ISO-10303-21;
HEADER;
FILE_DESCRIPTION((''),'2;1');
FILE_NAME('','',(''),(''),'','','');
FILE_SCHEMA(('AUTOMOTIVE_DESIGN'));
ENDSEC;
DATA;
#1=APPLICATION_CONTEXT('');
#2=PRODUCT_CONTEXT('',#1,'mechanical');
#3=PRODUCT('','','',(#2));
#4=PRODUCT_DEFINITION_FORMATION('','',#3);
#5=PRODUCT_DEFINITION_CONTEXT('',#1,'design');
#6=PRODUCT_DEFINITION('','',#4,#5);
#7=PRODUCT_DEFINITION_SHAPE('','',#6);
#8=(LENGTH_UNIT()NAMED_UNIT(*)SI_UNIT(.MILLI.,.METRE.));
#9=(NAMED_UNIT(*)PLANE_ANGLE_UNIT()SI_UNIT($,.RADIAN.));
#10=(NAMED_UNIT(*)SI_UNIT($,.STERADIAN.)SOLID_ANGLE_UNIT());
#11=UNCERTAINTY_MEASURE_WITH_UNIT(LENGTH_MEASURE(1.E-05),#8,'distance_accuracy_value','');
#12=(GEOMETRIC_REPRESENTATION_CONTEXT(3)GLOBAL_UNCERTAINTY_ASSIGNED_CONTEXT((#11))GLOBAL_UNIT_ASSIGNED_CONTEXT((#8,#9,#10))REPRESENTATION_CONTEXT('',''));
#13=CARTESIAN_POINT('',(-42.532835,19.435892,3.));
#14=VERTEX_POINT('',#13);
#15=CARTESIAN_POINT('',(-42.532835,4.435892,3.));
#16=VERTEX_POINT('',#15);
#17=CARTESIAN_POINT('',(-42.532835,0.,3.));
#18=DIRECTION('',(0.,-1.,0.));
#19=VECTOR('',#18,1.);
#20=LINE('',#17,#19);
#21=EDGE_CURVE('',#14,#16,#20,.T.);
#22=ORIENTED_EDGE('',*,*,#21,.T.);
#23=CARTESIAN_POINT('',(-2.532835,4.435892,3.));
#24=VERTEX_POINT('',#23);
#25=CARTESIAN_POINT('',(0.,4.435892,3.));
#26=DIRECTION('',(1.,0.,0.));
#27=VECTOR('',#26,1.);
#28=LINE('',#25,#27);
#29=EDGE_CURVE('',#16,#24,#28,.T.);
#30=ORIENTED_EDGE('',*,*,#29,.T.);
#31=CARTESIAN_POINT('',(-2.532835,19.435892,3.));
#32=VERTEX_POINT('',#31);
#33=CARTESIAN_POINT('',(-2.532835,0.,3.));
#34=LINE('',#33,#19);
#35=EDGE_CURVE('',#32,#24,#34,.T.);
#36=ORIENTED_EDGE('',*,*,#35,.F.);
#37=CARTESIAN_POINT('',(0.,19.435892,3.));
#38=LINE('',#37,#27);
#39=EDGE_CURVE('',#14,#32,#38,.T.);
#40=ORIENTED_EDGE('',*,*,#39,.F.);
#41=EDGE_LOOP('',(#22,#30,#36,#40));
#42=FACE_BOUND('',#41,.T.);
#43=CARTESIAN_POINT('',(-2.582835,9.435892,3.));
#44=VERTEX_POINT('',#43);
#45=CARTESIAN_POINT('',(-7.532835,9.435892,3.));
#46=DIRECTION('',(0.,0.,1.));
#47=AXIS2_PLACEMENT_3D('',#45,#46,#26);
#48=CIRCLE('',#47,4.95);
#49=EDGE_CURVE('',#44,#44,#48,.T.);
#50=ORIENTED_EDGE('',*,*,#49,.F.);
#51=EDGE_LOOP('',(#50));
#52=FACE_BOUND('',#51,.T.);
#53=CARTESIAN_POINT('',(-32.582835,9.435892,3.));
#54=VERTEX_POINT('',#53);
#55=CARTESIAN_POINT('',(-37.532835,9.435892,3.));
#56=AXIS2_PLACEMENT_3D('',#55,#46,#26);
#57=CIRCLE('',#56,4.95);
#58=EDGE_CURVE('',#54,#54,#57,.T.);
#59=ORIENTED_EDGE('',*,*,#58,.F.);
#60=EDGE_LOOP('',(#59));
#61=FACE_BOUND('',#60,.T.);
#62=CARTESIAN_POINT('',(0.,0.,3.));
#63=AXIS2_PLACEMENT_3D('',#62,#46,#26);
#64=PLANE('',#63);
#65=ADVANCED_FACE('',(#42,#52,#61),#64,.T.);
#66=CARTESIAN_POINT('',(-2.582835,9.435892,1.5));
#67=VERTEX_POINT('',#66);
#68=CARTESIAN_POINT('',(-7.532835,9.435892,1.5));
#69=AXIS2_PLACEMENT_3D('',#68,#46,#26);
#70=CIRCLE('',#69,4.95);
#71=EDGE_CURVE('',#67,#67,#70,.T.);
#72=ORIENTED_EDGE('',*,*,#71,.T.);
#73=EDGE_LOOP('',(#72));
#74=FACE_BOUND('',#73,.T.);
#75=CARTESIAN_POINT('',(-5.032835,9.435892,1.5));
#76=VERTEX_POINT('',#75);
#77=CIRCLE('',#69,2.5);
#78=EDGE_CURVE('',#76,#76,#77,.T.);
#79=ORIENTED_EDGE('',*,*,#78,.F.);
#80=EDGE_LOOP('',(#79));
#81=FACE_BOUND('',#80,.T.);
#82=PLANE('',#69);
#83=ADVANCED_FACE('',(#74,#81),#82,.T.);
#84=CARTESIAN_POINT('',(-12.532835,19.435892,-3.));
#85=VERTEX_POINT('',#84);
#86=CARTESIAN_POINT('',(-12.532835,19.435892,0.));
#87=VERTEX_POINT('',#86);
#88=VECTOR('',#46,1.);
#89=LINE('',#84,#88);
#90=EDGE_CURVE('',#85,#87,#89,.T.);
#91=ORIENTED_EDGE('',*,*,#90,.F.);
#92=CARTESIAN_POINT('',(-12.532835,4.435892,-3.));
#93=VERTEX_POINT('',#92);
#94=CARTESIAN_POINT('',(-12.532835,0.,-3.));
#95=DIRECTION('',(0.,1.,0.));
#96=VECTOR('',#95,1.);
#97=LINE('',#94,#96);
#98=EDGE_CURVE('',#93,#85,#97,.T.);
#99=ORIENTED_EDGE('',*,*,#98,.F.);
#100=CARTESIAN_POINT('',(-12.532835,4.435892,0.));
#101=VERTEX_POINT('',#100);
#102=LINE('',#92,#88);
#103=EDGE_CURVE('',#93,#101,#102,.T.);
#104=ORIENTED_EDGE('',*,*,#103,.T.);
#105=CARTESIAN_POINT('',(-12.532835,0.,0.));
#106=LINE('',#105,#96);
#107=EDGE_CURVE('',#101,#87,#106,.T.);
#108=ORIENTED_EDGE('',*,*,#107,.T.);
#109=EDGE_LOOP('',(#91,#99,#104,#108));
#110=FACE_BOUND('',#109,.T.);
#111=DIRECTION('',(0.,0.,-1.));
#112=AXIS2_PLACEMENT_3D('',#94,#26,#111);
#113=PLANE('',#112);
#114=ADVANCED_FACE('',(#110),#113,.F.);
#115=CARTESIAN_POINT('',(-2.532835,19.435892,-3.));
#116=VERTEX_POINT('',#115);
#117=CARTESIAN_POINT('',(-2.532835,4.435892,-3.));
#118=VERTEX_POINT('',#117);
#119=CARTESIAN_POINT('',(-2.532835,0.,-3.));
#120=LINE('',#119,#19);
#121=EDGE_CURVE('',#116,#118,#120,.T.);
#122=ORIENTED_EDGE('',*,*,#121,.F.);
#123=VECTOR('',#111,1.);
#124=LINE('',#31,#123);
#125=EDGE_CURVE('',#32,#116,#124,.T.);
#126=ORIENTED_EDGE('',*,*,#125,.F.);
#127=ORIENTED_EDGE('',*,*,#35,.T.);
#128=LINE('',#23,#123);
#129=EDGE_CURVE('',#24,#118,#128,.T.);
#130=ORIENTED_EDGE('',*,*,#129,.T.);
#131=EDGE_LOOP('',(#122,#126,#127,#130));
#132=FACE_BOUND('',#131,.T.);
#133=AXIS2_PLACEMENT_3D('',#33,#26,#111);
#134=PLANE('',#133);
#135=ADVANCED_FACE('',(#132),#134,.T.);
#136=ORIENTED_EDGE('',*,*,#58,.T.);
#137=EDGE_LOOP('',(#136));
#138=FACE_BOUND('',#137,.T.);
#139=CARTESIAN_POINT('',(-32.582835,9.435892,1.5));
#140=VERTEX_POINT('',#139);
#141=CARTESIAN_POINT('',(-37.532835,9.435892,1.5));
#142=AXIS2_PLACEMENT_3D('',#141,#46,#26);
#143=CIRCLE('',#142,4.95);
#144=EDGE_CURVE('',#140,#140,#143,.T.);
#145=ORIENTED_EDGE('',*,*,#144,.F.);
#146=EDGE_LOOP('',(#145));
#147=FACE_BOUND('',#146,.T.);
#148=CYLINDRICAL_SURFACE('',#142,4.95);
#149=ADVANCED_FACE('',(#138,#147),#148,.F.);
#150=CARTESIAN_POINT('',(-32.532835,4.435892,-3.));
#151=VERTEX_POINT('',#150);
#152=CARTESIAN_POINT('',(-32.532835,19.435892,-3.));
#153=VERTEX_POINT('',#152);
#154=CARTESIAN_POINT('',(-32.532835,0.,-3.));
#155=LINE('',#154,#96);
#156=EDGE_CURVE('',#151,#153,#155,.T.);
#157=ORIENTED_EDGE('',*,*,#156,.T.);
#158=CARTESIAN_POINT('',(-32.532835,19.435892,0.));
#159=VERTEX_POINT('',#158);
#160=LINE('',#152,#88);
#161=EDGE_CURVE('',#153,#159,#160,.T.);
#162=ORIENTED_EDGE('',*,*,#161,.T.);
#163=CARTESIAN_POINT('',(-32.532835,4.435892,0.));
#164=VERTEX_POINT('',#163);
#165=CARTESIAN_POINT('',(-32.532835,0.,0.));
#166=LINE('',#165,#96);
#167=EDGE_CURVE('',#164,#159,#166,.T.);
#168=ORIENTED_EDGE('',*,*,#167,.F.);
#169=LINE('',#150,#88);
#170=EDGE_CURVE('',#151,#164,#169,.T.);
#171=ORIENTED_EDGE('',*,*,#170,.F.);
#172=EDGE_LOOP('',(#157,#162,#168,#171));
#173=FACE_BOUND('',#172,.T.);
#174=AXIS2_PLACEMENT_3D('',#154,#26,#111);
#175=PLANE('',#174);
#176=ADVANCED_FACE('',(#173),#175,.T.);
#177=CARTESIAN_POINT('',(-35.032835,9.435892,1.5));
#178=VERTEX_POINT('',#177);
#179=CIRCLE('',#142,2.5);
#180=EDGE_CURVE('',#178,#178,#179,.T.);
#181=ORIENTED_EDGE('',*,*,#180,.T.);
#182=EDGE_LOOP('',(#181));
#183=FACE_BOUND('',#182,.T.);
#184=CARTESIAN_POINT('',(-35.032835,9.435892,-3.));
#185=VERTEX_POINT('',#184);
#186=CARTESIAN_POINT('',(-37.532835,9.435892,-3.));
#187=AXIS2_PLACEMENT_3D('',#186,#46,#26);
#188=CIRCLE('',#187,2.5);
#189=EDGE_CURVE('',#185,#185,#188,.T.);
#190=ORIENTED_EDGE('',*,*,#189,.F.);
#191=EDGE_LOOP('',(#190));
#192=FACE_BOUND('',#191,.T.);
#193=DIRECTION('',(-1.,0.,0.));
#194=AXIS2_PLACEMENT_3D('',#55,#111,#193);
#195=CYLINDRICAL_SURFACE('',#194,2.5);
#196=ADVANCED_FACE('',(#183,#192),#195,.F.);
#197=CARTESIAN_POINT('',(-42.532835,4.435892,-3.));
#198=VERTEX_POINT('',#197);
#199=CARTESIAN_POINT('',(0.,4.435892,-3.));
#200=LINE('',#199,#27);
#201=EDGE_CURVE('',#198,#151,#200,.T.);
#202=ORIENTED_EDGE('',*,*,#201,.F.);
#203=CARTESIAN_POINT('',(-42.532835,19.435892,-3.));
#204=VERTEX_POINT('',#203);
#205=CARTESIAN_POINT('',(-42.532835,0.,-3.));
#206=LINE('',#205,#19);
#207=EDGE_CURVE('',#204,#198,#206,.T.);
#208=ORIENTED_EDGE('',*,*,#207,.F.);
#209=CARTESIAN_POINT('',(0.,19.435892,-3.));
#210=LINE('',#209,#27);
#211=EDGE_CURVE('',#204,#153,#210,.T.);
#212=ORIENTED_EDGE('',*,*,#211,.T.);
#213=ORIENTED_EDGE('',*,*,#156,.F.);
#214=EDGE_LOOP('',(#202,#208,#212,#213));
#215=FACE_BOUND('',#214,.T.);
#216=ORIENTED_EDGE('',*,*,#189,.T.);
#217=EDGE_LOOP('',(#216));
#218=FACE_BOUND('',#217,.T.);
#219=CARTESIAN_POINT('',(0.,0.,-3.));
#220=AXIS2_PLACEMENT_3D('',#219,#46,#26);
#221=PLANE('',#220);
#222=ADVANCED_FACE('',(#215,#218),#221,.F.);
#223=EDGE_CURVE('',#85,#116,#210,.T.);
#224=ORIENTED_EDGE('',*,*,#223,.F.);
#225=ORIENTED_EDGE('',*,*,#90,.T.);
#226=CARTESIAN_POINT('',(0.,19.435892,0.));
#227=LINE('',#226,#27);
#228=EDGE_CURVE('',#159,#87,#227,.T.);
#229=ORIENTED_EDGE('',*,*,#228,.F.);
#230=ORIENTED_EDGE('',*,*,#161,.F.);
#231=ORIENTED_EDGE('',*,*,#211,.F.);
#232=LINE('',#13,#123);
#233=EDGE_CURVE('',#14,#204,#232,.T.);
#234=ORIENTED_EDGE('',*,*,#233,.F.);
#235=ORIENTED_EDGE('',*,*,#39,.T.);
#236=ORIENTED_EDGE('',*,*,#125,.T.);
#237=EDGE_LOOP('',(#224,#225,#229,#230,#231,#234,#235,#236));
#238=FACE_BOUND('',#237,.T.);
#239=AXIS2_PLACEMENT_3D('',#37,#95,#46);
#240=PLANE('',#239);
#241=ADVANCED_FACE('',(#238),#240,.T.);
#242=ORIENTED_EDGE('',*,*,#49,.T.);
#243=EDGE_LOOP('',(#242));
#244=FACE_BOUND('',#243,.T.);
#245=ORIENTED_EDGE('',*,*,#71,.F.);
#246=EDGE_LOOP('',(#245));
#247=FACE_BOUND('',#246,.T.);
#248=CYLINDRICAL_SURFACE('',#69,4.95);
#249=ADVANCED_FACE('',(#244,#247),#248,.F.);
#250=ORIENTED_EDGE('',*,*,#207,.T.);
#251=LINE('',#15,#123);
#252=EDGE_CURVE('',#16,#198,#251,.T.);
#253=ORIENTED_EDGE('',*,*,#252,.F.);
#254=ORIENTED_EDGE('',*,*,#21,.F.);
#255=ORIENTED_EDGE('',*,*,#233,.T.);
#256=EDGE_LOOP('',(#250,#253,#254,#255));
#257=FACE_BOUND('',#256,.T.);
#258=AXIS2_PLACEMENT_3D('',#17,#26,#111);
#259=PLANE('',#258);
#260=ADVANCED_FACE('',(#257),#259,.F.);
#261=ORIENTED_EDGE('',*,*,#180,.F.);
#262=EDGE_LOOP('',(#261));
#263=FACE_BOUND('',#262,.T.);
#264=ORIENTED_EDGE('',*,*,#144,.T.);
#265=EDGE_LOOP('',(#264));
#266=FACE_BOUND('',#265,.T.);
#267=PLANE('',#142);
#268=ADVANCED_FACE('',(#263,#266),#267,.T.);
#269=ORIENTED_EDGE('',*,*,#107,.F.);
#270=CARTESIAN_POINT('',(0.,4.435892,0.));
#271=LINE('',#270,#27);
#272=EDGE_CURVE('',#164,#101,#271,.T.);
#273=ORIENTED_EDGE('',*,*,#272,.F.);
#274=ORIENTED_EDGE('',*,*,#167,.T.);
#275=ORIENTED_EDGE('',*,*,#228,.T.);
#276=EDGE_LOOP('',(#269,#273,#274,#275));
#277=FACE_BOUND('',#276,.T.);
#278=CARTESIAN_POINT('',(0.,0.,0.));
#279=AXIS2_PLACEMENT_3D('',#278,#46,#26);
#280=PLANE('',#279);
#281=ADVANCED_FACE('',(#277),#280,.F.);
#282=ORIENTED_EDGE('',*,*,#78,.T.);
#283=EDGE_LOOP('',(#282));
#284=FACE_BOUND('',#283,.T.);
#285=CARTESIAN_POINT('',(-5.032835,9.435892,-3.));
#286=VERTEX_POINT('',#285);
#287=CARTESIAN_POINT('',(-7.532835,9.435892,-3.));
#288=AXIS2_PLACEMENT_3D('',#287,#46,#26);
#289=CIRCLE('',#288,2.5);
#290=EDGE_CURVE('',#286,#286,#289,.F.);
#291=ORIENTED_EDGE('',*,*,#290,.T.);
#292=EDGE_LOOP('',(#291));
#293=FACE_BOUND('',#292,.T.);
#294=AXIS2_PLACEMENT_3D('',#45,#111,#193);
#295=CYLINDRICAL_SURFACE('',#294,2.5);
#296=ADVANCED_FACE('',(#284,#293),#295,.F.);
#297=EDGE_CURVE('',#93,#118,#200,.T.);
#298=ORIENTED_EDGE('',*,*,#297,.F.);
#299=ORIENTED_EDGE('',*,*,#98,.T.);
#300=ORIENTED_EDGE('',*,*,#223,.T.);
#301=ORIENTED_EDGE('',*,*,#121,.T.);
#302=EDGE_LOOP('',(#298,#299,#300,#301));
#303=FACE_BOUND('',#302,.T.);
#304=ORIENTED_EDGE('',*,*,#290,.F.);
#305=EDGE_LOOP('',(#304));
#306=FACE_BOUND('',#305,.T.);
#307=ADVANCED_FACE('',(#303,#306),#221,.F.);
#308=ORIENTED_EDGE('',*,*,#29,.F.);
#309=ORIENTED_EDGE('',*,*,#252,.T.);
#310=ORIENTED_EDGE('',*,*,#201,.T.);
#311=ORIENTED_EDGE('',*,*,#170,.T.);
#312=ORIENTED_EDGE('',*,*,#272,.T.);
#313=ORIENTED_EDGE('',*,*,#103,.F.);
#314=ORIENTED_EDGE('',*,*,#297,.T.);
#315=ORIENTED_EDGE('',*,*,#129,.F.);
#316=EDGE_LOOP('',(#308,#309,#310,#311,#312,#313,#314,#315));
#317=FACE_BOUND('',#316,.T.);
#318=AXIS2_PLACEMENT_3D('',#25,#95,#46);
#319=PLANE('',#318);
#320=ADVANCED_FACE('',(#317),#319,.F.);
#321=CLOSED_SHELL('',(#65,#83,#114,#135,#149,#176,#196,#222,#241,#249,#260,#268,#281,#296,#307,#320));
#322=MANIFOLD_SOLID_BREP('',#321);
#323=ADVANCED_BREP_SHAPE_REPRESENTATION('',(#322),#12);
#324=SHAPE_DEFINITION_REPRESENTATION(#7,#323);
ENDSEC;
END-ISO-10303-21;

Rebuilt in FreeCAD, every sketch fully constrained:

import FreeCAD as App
import Part
import Sketcher

doc = App.newDocument("Part")
params = doc.addObject("Spreadsheet::Sheet", "Params")
for row, (alias, value) in enumerate([
    ("sketch1_diameter", "5 mm"),
    ("sketch1_width", "40 mm"),
    ("sketch1_height", "15 mm"),
    ("pad1_length", "3 mm"),
    ("sketch2_diameter", "5 mm"),
    ("sketch2_width", "10 mm"),
    ("sketch2_height", "15 mm"),
    ("pad2_length", "3 mm"),
    ("sketch3_diameter", "5 mm"),
    ("sketch3_diameter2", "9.9 mm"),
    ("pocket1_length", "1.5 mm"),
], start=1):
    params.set(f"A{row}", alias)
    params.set(f"B{row}", "=" + value)
    params.setAlias(f"B{row}", alias)

body = doc.addObject("PartDesign::Body", "Body")

# Sketch on XY plane
sketch1 = doc.addObject("Sketcher::SketchObject", "Sketch")
body.addObject(sketch1)
sketch1.AttachmentSupport = (doc.XY_Plane, [""])
sketch1.MapMode = "FlatFace"
sketch1.addGeometry([
    Part.LineSegment(App.Vector(-42.532835, 19.435892, 0), App.Vector(-42.532835, 4.435892, 0)),  # 0
    Part.LineSegment(App.Vector(-42.532835, 4.435892, 0), App.Vector(-2.532835, 4.435892, 0)),  # 1
    Part.LineSegment(App.Vector(-2.532835, 4.435892, 0), App.Vector(-2.532835, 19.435892, 0)),  # 2
    Part.LineSegment(App.Vector(-2.532835, 19.435892, 0), App.Vector(-42.532835, 19.435892, 0)),  # 3
    Part.Circle(App.Vector(-37.532835, 9.435892, 0), App.Vector(0, 0, 1), 2.5),  # 4
    Part.Circle(App.Vector(-7.532835, 9.435892, 0), App.Vector(0, 0, 1), 2.5),  # 5
], False)
sketch1.addConstraint([
    Sketcher.Constraint("Coincident", 0, 2, 1, 1),
    Sketcher.Constraint("Coincident", 1, 2, 2, 1),
    Sketcher.Constraint("Coincident", 2, 2, 3, 1),
    Sketcher.Constraint("Coincident", 3, 2, 0, 1),
    Sketcher.Constraint("Vertical", 0),
    Sketcher.Constraint("Horizontal", 1),
    Sketcher.Constraint("Vertical", 2),
    Sketcher.Constraint("Horizontal", 3),
    Sketcher.Constraint("Equal", 4, 5),
    Sketcher.Constraint("Horizontal", 4, 3, 5, 3),
    Sketcher.Constraint("Diameter", 4, 5.0),
    Sketcher.Constraint("DistanceX", 1, 1, 1, 2, 40.0),
    Sketcher.Constraint("DistanceY", 0, 2, 0, 1, 15.0),
    Sketcher.Constraint("DistanceX", 4, 3, 5, 3, 30.0),
    Sketcher.Constraint("DistanceX", 0, 2, 4, 3, 5.0),
    Sketcher.Constraint("DistanceY", 0, 2, 4, 3, 5.0),
    Sketcher.Constraint("DistanceX", 4, 3, -1, 1, 37.532835),
    Sketcher.Constraint("DistanceY", -1, 1, 4, 3, 9.435892),
])
sketch1.setExpression("Constraints[10]", "Params.sketch1_diameter")
sketch1.setExpression("Constraints[11]", "Params.sketch1_width")
sketch1.setExpression("Constraints[12]", "Params.sketch1_height")
pad1 = doc.addObject("PartDesign::Pad", "Pad")
body.addObject(pad1)
pad1.Profile = sketch1
pad1.setExpression("Length", "Params.pad1_length")

# Sketch on XY plane
sketch2 = doc.addObject("Sketcher::SketchObject", "Sketch001")
body.addObject(sketch2)
sketch2.AttachmentSupport = (doc.XY_Plane, [""])
sketch2.MapMode = "FlatFace"
sketch2.AttachmentOffset = App.Placement(App.Vector(0, 0, -3), App.Rotation())
sketch2.addGeometry([
    Part.LineSegment(App.Vector(-42.532835, 19.435892, 0), App.Vector(-42.532835, 4.435892, 0)),  # 0
    Part.LineSegment(App.Vector(-42.532835, 4.435892, 0), App.Vector(-32.532835, 4.435892, 0)),  # 1
    Part.LineSegment(App.Vector(-32.532835, 4.435892, 0), App.Vector(-32.532835, 19.435892, 0)),  # 2
    Part.LineSegment(App.Vector(-32.532835, 19.435892, 0), App.Vector(-42.532835, 19.435892, 0)),  # 3
    Part.Circle(App.Vector(-37.532835, 9.435892, 0), App.Vector(0, 0, 1), 2.5),  # 4
    Part.LineSegment(App.Vector(-12.532835, 19.435892, 0), App.Vector(-12.532835, 4.435892, 0)),  # 5
    Part.LineSegment(App.Vector(-12.532835, 4.435892, 0), App.Vector(-2.532835, 4.435892, 0)),  # 6
    Part.LineSegment(App.Vector(-2.532835, 4.435892, 0), App.Vector(-2.532835, 19.435892, 0)),  # 7
    Part.LineSegment(App.Vector(-2.532835, 19.435892, 0), App.Vector(-12.532835, 19.435892, 0)),  # 8
    Part.Circle(App.Vector(-7.532835, 9.435892, 0), App.Vector(0, 0, 1), 2.5),  # 9
], False)
sketch2.addConstraint([
    Sketcher.Constraint("Coincident", 0, 2, 1, 1),
    Sketcher.Constraint("Coincident", 1, 2, 2, 1),
    Sketcher.Constraint("Coincident", 2, 2, 3, 1),
    Sketcher.Constraint("Coincident", 3, 2, 0, 1),
    Sketcher.Constraint("Coincident", 5, 2, 6, 1),
    Sketcher.Constraint("Coincident", 6, 2, 7, 1),
    Sketcher.Constraint("Coincident", 7, 2, 8, 1),
    Sketcher.Constraint("Coincident", 8, 2, 5, 1),
    Sketcher.Constraint("Vertical", 0),
    Sketcher.Constraint("Horizontal", 1),
    Sketcher.Constraint("Vertical", 2),
    Sketcher.Constraint("Horizontal", 3),
    Sketcher.Constraint("Vertical", 5),
    Sketcher.Constraint("Horizontal", 6),
    Sketcher.Constraint("Vertical", 7),
    Sketcher.Constraint("Horizontal", 8),
    Sketcher.Constraint("Equal", 4, 9),
    Sketcher.Constraint("Horizontal", 4, 3, 9, 3),
    Sketcher.Constraint("Horizontal", 1, 2, 5, 2),
    Sketcher.Constraint("Horizontal", 3, 2, 7, 2),
    Sketcher.Constraint("Equal", 3, 6),
    Sketcher.Constraint("Diameter", 4, 5.0),
    Sketcher.Constraint("DistanceX", 1, 1, 1, 2, 10.0),
    Sketcher.Constraint("DistanceY", 0, 2, 0, 1, 15.0),
    Sketcher.Constraint("DistanceX", 4, 3, 9, 3, 30.0),
    Sketcher.Constraint("DistanceX", 0, 2, 4, 3, 5.0),
    Sketcher.Constraint("DistanceY", 0, 2, 4, 3, 5.0),
    Sketcher.Constraint("DistanceX", 5, 2, 9, 3, 5.0),
    Sketcher.Constraint("DistanceX", 4, 3, -1, 1, 37.532835),
    Sketcher.Constraint("DistanceY", -1, 1, 4, 3, 9.435892),
])
sketch2.setExpression("Constraints[21]", "Params.sketch2_diameter")
sketch2.setExpression("Constraints[22]", "Params.sketch2_width")
sketch2.setExpression("Constraints[23]", "Params.sketch2_height")
pad2 = doc.addObject("PartDesign::Pad", "Pad001")
body.addObject(pad2)
pad2.Profile = sketch2
pad2.setExpression("Length", "Params.pad2_length")

# Sketch on XY plane
sketch3 = doc.addObject("Sketcher::SketchObject", "Sketch002")
body.addObject(sketch3)
sketch3.AttachmentSupport = (doc.XY_Plane, [""])
sketch3.MapMode = "FlatFace"
sketch3.AttachmentOffset = App.Placement(App.Vector(0, 0, 1.5), App.Rotation())
sketch3.addGeometry([
    Part.Circle(App.Vector(-37.532835, 9.435892, 0), App.Vector(0, 0, 1), 4.95),
    Part.Circle(App.Vector(-37.532835, 9.435892, 0), App.Vector(0, 0, 1), 2.5),
    Part.Circle(App.Vector(-7.532835, 9.435892, 0), App.Vector(0, 0, 1), 4.95),
    Part.Circle(App.Vector(-7.532835, 9.435892, 0), App.Vector(0, 0, 1), 2.5),
], False)
sketch3.addConstraint([
    Sketcher.Constraint("Coincident", 1, 3, 0, 3),
    Sketcher.Constraint("Coincident", 3, 3, 2, 3),
    Sketcher.Constraint("Equal", 0, 2),
    Sketcher.Constraint("Equal", 1, 3),
    Sketcher.Constraint("Horizontal", 1, 3, 2, 3),
    Sketcher.Constraint("Diameter", 1, 5.0),
    Sketcher.Constraint("Diameter", 0, 9.9),
    Sketcher.Constraint("DistanceX", 0, 3, 2, 3, 30.0),
    Sketcher.Constraint("DistanceX", 0, 3, -1, 1, 37.532835),
    Sketcher.Constraint("DistanceY", -1, 1, 0, 3, 9.435892),
])
sketch3.setExpression("Constraints[5]", "Params.sketch3_diameter")
sketch3.setExpression("Constraints[6]", "Params.sketch3_diameter2")
pocket1 = doc.addObject("PartDesign::Pocket", "Pocket")
body.addObject(pocket1)
pocket1.Profile = sketch3
pocket1.setExpression("Length", "Params.pocket1_length")
pocket1.Reversed = True

doc.recompute()
